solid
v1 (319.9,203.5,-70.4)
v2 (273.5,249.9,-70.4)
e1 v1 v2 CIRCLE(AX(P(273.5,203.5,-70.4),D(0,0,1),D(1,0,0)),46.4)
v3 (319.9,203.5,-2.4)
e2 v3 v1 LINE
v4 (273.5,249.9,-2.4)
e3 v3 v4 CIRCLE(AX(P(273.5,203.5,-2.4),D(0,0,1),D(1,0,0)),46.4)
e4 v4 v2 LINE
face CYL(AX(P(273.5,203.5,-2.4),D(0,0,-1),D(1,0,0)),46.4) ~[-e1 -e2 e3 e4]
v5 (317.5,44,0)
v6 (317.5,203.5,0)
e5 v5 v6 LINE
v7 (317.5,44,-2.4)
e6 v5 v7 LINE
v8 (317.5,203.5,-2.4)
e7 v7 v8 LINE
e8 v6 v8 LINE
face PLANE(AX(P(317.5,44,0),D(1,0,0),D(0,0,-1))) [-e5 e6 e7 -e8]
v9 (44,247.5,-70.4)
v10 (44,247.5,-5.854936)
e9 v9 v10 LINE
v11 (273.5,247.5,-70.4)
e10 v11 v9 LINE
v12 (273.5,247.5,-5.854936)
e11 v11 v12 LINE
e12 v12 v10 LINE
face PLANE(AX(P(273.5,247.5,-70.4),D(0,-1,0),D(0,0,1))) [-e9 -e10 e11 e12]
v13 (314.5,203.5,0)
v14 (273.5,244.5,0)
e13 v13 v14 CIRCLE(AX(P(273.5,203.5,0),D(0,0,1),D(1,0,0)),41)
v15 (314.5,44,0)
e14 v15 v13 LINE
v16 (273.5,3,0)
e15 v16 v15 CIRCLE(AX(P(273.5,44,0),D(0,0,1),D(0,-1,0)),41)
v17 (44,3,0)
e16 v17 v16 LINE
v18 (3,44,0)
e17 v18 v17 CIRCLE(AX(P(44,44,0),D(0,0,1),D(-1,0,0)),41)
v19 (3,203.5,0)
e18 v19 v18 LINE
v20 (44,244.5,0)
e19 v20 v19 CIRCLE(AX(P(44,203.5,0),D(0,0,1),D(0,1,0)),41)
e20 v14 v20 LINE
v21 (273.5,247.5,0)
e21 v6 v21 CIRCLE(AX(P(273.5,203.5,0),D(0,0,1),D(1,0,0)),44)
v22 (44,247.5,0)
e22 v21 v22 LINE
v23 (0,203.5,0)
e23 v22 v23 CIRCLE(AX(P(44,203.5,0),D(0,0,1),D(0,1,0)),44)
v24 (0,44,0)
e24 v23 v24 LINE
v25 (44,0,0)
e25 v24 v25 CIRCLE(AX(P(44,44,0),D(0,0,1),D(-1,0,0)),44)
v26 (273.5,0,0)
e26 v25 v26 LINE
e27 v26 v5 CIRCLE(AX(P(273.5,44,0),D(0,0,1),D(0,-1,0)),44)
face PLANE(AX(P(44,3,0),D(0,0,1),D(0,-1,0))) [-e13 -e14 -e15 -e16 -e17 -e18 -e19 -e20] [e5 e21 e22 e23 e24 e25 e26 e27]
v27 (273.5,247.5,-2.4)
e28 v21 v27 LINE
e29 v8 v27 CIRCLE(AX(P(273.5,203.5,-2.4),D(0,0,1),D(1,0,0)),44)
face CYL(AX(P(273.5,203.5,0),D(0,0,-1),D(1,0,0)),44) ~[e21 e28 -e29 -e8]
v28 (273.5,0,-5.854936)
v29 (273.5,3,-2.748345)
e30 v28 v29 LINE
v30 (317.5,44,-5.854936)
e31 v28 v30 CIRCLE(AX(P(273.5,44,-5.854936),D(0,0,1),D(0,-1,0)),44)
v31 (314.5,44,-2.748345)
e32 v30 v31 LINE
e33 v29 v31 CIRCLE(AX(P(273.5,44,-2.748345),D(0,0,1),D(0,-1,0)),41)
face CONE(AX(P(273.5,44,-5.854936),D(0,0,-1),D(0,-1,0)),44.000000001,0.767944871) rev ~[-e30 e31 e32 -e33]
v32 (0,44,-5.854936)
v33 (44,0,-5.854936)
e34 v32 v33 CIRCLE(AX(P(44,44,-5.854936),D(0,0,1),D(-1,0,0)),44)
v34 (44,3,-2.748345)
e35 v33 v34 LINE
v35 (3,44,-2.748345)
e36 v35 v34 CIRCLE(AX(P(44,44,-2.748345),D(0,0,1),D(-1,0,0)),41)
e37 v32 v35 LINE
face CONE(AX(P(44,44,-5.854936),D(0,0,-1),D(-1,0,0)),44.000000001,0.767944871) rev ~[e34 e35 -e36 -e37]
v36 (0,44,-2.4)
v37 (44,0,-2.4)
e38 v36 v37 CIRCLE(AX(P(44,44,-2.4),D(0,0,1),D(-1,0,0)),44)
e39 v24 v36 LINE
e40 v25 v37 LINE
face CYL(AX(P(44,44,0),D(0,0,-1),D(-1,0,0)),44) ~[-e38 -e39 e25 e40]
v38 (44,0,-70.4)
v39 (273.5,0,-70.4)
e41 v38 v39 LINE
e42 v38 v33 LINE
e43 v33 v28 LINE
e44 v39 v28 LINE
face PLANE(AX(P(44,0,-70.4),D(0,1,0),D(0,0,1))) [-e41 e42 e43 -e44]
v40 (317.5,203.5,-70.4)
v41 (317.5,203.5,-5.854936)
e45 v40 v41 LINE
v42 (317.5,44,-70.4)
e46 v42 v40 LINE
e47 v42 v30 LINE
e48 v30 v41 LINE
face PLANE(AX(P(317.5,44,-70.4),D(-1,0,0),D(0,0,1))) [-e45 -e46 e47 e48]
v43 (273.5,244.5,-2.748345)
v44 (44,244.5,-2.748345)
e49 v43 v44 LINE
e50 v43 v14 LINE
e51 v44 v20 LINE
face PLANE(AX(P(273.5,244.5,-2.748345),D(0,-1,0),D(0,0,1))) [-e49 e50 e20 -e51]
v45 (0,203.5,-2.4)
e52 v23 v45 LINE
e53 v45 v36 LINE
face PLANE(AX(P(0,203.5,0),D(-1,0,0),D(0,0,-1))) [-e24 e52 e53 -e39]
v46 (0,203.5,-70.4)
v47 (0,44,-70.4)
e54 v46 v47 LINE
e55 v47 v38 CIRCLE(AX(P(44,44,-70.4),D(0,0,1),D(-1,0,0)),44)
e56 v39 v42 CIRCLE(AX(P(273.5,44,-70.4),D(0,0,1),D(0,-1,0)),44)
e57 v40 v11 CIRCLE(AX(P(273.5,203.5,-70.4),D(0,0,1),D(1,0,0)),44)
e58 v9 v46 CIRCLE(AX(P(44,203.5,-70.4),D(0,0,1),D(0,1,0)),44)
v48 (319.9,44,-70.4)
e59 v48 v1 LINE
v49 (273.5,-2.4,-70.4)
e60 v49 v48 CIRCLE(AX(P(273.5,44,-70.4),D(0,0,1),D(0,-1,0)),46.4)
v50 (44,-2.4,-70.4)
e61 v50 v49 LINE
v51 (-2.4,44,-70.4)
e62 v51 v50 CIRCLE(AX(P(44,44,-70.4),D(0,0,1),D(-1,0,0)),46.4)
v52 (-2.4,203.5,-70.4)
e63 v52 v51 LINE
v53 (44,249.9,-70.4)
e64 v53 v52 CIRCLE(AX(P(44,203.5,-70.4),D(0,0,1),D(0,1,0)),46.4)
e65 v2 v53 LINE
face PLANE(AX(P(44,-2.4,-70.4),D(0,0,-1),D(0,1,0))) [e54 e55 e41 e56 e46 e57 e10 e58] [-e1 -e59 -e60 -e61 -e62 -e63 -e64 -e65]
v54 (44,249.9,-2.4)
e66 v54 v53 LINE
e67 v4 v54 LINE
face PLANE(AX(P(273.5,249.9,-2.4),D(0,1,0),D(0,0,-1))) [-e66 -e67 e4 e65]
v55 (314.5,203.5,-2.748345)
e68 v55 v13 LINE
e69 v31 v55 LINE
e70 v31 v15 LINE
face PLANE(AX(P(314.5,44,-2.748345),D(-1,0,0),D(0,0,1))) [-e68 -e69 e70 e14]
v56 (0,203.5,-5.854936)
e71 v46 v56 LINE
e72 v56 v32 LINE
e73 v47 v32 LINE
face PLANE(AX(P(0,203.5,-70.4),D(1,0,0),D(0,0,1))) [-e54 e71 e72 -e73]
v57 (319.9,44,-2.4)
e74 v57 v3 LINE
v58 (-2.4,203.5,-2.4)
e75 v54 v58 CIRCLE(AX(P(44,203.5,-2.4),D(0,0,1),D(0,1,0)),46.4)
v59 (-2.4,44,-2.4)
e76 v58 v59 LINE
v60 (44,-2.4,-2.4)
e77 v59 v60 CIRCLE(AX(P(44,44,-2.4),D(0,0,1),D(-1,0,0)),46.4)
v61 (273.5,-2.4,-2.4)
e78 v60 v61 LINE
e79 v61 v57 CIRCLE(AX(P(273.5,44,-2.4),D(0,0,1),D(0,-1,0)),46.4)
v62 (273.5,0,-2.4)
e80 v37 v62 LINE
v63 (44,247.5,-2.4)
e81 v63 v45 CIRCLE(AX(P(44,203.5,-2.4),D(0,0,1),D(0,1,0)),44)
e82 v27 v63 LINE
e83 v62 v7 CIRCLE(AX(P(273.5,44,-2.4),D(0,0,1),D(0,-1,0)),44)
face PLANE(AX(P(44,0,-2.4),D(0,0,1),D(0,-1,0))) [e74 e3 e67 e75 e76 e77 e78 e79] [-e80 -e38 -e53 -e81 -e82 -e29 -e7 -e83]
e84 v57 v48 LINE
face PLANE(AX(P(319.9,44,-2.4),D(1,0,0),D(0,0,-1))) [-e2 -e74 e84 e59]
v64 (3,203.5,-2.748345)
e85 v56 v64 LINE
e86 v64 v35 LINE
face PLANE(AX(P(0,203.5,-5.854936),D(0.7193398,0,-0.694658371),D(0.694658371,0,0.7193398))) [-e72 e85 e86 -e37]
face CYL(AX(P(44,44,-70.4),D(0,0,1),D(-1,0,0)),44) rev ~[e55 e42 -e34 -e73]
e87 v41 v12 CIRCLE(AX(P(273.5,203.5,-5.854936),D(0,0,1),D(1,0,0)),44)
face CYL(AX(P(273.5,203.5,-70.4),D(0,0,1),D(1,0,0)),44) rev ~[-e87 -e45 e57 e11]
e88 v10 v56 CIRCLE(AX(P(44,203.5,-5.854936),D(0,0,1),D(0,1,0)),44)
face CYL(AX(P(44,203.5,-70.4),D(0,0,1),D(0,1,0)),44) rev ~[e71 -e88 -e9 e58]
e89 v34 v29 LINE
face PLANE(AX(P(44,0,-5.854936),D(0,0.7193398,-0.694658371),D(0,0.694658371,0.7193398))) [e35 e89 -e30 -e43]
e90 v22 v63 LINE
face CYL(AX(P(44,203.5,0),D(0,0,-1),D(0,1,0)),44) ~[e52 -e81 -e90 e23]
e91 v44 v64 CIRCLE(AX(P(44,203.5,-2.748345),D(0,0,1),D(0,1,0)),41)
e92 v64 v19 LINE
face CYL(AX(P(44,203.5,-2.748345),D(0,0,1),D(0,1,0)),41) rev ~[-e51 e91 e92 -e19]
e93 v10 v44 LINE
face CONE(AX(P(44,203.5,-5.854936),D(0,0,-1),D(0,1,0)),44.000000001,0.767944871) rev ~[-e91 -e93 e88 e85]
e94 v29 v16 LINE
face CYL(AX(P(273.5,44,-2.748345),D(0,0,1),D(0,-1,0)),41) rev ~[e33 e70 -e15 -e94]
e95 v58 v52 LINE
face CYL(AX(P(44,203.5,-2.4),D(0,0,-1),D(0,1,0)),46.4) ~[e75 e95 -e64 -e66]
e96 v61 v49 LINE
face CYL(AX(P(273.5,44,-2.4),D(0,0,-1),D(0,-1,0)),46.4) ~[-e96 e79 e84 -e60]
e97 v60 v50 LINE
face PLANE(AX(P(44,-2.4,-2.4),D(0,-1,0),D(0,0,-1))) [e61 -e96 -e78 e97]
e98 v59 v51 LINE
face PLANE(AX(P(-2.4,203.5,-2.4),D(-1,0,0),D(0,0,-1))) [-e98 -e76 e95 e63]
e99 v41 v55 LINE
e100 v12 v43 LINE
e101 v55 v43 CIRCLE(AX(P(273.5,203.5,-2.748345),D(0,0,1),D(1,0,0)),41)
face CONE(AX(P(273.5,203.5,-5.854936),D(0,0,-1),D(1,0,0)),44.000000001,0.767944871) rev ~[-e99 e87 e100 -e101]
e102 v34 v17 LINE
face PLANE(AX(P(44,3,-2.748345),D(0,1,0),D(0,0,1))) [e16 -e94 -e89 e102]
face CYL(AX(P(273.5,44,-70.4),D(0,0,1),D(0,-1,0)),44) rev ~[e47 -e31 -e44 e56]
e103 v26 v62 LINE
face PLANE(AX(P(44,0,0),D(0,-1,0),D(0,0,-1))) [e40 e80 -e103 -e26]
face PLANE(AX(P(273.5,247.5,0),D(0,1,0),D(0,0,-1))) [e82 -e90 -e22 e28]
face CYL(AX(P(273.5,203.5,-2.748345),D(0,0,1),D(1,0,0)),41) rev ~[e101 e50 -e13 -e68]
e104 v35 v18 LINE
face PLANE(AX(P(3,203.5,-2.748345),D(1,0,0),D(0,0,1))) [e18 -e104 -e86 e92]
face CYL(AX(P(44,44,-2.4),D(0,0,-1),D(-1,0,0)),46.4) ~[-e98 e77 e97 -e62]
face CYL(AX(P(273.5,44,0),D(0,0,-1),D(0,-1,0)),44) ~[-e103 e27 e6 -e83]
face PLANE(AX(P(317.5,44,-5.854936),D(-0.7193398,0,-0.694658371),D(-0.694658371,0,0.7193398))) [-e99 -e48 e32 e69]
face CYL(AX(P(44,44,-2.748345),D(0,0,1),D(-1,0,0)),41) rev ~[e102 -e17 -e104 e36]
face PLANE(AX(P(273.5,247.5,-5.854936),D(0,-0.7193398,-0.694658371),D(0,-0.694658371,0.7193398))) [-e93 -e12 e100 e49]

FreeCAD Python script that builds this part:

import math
import FreeCAD as App
import Part
import Sketcher
Q = App.Units.Quantity

doc = App.newDocument("Part")
body = doc.addObject("PartDesign::Body", "Body")

sketch1 = doc.addObject("Sketcher::SketchObject", "Sketch")
body.addObject(sketch1)
sketch1.AttachmentSupport = (doc.YZ_Plane, [""])
sketch1.MapMode = "FlatFace"
sketch1.AttachmentOffset = App.Placement(App.Vector(0, 0, 44), App.Rotation())
sketch1.addGeometry([
    Part.LineSegment(App.Vector(0, 0, 0), App.Vector(0, -2.4, 0)),
    Part.LineSegment(App.Vector(0, -2.4, 0), App.Vector(-2.4, -2.4, 0)),
    Part.LineSegment(App.Vector(-2.4, -2.4, 0), App.Vector(-2.4, -70.4, 0)),
    Part.LineSegment(App.Vector(-2.4, -70.4, 0), App.Vector(0, -70.4, 0)),
    Part.LineSegment(App.Vector(0, -70.4, 0), App.Vector(0, -5.9, 0)),
    Part.LineSegment(App.Vector(0, -5.9, 0), App.Vector(3, -2.7, 0)),
    Part.LineSegment(App.Vector(3, -2.7, 0), App.Vector(3, 0, 0)),
    Part.LineSegment(App.Vector(3, 0, 0), App.Vector(0, 0, 0)),
], False)
sketch1.addConstraint([
    Sketcher.Constraint("Coincident", 0, 2, 1, 1),
    Sketcher.Constraint("Coincident", 1, 2, 2, 1),
    Sketcher.Constraint("Coincident", 2, 2, 3, 1),
    Sketcher.Constraint("Coincident", 3, 2, 4, 1),
    Sketcher.Constraint("Coincident", 4, 2, 5, 1),
    Sketcher.Constraint("Coincident", 5, 2, 6, 1),
    Sketcher.Constraint("Coincident", 6, 2, 7, 1),
    Sketcher.Constraint("Coincident", 7, 2, 0, 1),
    Sketcher.Constraint("Vertical", 0),
    Sketcher.Constraint("Horizontal", 1),
    Sketcher.Constraint("Vertical", 2),
    Sketcher.Constraint("Horizontal", 3),
    Sketcher.Constraint("Vertical", 4),
    Sketcher.Constraint("Vertical", 6),
    Sketcher.Constraint("Horizontal", 7),
    Sketcher.Constraint("Coincident", 7, 2, -1, 1),
    Sketcher.Constraint("PointOnObject", 3, 2, -2),
    Sketcher.Constraint("Equal", 3, 0),
    Sketcher.Constraint("DistanceX", 7, 2, 7, 1, 3.0),
    Sketcher.Constraint("DistanceY", 2, 2, 2, 1, 68.0),
    Sketcher.Constraint("Angle", 5, Q("46 deg")),
    Sketcher.Constraint("DistanceX", 1, 2, 1, 1, 2.4),
    Sketcher.Constraint("DistanceY", 4, 1, 4, 2, 64.545064),
])

sketch2 = doc.addObject("Sketcher::SketchObject", "Sketch001")
body.addObject(sketch2)
sketch2.AttachmentSupport = (doc.XY_Plane, [""])
sketch2.MapMode = "FlatFace"
sketch2.addGeometry([
    Part.LineSegment(App.Vector(44, 0, 0), App.Vector(274, 0, 0)),
    Part.ArcOfCircle(Part.Circle(App.Vector(273, 44, 0), App.Vector(0, 0, 1), 44), math.radians(-90), math.radians(0)),
    Part.LineSegment(App.Vector(318, 44, 0), App.Vector(318, 204, 0)),
    Part.ArcOfCircle(Part.Circle(App.Vector(273, 203, 0), App.Vector(0, 0, 1), 44), math.radians(0), math.radians(90)),
    Part.LineSegment(App.Vector(274, 248, 0), App.Vector(44, 248, 0)),
    Part.ArcOfCircle(Part.Circle(App.Vector(44, 203, 0), App.Vector(0, 0, 1), 44), math.radians(90), math.radians(180)),
    Part.LineSegment(App.Vector(0, 204, 0), App.Vector(0, 44, 0)),
    Part.ArcOfCircle(Part.Circle(App.Vector(44, 44, 0), App.Vector(0, 0, 1), 44), math.radians(-180), math.radians(-90)),
], False)
sketch2.addConstraint([
    Sketcher.Constraint("Tangent", 0, 2, 1, 1),
    Sketcher.Constraint("Tangent", 1, 2, 2, 1),
    Sketcher.Constraint("Tangent", 2, 2, 3, 1),
    Sketcher.Constraint("Tangent", 3, 2, 4, 1),
    Sketcher.Constraint("Tangent", 4, 2, 5, 1),
    Sketcher.Constraint("Tangent", 5, 2, 6, 1),
    Sketcher.Constraint("Tangent", 6, 2, 7, 1),
    Sketcher.Constraint("Tangent", 7, 2, 0, 1),
    Sketcher.Constraint("Horizontal", 0),
    Sketcher.Constraint("Vertical", 2),
    Sketcher.Constraint("Horizontal", 4),
    Sketcher.Constraint("Vertical", 6),
    Sketcher.Constraint("Equal", 1, 3),
    Sketcher.Constraint("Equal", 3, 5),
    Sketcher.Constraint("Equal", 5, 7),
    Sketcher.Constraint("PointOnObject", 0, 2, -1),
    Sketcher.Constraint("PointOnObject", 5, 2, -2),
    Sketcher.Constraint("Radius", 1, 44.0),
    Sketcher.Constraint("DistanceX", 0, 1, 0, 2, 229.5),
    Sketcher.Constraint("DistanceY", 2, 1, 2, 2, 159.5),
])
doc.recompute()

additivepipe = doc.addObject("PartDesign::AdditivePipe", "AdditivePipe")
body.addObject(additivepipe)
additivepipe.Profile = sketch1
additivepipe.Spine = (sketch2, ["Edge1", "Edge2", "Edge3", "Edge4", "Edge5", "Edge6", "Edge7", "Edge8"])

doc.recompute()
